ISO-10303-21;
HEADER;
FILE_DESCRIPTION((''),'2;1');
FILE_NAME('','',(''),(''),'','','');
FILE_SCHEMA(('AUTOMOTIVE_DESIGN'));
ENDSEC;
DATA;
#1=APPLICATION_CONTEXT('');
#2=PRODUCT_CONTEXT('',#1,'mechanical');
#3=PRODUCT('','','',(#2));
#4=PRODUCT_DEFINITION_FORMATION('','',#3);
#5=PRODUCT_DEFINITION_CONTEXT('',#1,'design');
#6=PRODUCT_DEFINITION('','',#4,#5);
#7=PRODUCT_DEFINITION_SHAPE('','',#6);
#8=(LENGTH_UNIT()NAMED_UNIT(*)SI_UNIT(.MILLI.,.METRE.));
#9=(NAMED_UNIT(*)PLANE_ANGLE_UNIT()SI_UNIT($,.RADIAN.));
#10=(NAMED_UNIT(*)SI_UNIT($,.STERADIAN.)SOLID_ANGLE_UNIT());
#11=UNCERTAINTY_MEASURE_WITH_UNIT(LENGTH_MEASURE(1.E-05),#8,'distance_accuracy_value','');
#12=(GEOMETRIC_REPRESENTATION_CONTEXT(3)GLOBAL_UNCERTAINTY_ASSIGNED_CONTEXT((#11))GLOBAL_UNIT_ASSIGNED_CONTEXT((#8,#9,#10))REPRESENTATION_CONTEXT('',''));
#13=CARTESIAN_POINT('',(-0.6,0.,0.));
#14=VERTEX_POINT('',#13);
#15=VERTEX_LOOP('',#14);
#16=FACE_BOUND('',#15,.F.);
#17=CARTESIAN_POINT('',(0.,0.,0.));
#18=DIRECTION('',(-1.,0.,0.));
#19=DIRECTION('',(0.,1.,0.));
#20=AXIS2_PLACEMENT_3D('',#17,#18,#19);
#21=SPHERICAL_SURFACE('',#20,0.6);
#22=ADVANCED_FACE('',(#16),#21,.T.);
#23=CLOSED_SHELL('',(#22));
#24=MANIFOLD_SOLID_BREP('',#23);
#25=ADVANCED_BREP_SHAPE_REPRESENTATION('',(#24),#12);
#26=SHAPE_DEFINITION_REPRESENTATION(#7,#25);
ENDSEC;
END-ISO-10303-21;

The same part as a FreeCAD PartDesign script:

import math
import FreeCAD as App
import Part
import Sketcher

doc = App.newDocument("Part")
body = doc.addObject("PartDesign::Body", "Body")

# Sketch on XY plane
sketch1 = body.newObject("Sketcher::SketchObject", "Sketch")
sketch1.AttachmentSupport = (doc.getObject("XY_Plane"), [""])
sketch1.MapMode = "FlatFace"
sketch1.addGeometry(Part.LineSegment(App.Vector(-0.6, 0, 0), App.Vector(0.6, 0, 0)), False)
sketch1.addGeometry(Part.ArcOfCircle(Part.Circle(App.Vector(0, 0, 0), App.Vector(0, 0, 1), 0.6), math.radians(0), math.radians(180)), False)
sketch1.addConstraint(Sketcher.Constraint("Coincident", 0, 1, 1, 2))
sketch1.addConstraint(Sketcher.Constraint("Coincident", 1, 1, 0, 2))
sketch1.addConstraint(Sketcher.Constraint("Horizontal", 0))
sketch1.addConstraint(Sketcher.Constraint("Coincident", 1, 3, -1, 1))
sketch1.addConstraint(Sketcher.Constraint("PointOnObject", 0, 1, -1))
sketch1.addConstraint(Sketcher.Constraint("Radius", 1, 0.6))
revolution = body.newObject("PartDesign::Revolution", "Revolution")
revolution.Profile = sketch1
revolution.ReferenceAxis = (sketch1, ["H_Axis"])
revolution.Angle = 360

doc.recompute()
